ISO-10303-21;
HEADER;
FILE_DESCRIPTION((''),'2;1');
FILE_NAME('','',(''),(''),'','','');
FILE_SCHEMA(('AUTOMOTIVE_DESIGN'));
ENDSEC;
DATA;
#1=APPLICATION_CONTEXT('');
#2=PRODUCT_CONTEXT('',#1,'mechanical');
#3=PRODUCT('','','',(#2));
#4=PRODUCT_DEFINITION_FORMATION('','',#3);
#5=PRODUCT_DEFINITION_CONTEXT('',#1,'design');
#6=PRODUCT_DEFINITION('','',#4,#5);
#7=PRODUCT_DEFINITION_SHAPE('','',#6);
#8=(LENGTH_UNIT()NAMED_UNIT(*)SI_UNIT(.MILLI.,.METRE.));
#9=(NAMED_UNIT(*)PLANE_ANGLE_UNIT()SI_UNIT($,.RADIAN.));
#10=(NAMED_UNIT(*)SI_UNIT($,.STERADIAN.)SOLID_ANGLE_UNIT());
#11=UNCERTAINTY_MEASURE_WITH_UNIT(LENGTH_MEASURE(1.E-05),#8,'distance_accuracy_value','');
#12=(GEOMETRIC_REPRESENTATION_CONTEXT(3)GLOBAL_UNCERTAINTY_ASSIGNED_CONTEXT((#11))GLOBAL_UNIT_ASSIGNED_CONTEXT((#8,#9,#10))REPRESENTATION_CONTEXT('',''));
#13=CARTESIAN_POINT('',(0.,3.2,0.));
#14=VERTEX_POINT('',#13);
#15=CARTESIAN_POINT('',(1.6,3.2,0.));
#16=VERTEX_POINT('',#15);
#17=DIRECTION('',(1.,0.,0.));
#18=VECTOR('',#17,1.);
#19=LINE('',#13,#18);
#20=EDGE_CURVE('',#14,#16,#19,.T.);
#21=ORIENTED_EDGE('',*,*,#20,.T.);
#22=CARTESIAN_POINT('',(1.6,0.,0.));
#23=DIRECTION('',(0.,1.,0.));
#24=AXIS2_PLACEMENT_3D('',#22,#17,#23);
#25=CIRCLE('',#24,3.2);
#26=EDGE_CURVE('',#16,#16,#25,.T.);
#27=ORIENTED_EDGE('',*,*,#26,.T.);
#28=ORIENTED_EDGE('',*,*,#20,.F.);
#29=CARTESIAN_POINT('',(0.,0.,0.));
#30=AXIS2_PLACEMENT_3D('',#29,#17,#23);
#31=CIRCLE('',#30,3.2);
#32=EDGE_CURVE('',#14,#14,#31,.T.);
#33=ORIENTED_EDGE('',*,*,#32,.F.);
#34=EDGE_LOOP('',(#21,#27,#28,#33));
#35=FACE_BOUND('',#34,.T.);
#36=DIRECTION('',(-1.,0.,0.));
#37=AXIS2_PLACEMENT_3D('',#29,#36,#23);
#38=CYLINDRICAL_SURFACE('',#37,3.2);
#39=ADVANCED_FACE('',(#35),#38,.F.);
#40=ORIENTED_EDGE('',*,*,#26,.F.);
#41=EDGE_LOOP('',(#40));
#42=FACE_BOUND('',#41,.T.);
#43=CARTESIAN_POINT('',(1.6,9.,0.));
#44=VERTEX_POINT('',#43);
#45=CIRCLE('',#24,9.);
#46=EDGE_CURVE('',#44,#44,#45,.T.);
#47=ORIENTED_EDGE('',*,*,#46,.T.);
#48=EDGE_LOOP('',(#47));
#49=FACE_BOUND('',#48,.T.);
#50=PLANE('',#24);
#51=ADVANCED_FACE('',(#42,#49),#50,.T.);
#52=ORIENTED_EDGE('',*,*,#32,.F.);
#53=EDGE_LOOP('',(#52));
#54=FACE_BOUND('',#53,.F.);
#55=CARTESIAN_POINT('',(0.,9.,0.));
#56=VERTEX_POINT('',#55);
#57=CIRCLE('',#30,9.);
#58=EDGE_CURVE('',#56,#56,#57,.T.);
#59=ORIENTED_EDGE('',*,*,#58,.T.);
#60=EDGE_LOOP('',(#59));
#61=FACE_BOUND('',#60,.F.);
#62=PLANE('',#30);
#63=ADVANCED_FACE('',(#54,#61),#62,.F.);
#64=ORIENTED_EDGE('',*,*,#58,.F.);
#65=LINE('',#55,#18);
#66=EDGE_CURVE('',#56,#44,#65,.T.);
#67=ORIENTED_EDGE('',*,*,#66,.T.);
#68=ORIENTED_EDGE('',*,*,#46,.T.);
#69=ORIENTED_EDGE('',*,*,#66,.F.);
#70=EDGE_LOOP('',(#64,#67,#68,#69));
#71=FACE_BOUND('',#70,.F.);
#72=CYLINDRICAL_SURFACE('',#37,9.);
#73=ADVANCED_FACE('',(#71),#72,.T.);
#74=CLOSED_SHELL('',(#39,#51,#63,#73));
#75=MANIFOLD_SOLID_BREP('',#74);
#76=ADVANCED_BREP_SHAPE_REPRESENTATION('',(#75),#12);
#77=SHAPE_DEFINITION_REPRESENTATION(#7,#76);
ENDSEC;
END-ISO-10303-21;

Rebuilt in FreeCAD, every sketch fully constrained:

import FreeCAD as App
import Part
import Sketcher

V = App.Vector

doc = App.newDocument("Part")
body = doc.addObject("PartDesign::Body", "Body")

sketch1 = doc.addObject("Sketcher::SketchObject", "Sketch")
body.addObject(sketch1)
sketch1.AttachmentSupport = (doc.YZ_Plane, [""])
sketch1.MapMode = "FlatFace"
sketch1.addGeometry([
    Part.Circle(V(0, 0, 0), V(0, 0, 1), 9),
    Part.Circle(V(0, 0, 0), V(0, 0, 1), 3.2),
], False)
sketch1.addConstraint([
    Sketcher.Constraint("Coincident", 0, 3, -1, 1),
    Sketcher.Constraint("Coincident", 1, 3, -1, 1),
    Sketcher.Constraint("Diameter", 0, 18.0),
    Sketcher.Constraint("Diameter", 1, 6.4),
])
pad1 = doc.addObject("PartDesign::Pad", "Pad")
body.addObject(pad1)
pad1.Profile = sketch1
pad1.Length = 1.6

doc.recompute()
